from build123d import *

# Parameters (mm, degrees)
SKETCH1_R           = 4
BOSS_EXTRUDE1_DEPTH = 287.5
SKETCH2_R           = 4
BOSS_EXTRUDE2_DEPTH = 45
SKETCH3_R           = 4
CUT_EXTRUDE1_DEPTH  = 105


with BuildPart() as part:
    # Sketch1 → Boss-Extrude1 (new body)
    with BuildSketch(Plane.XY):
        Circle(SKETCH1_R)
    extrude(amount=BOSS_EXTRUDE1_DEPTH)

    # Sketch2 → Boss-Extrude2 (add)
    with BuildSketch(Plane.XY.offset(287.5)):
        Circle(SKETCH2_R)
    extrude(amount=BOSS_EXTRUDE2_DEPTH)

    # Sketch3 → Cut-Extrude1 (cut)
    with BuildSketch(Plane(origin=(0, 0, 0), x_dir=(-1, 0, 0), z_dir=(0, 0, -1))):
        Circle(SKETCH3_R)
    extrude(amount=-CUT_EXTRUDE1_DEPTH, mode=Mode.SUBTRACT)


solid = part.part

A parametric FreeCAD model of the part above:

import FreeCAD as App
import Part
import Sketcher
from FreeCAD import Vector
Q = App.Units.Quantity

doc = App.newDocument("Part")
body = doc.addObject("PartDesign::Body", "Body")

sketch1 = doc.addObject("Sketcher::SketchObject", "Sketch")
body.addObject(sketch1)
sketch1.AttachmentSupport = (doc.XY_Plane, [""])
sketch1.MapMode = "FlatFace"
sketch1.addGeometry(Part.Circle(Vector(0, 0, 0), Vector(0, 0, 1), 4), False)
sketch1.addConstraint([
    Sketcher.Constraint("Coincident", 0, 3, -1, 1),
    Sketcher.Constraint("Diameter", 0, Q("8 mm")),
])
pad1 = doc.addObject("PartDesign::Pad", "Pad")
body.addObject(pad1)
pad1.Profile = sketch1
pad1.Length = 287.5

sketch2 = doc.addObject("Sketcher::SketchObject", "Sketch001")
body.addObject(sketch2)
sketch2.AttachmentSupport = (doc.XY_Plane, [""])
sketch2.MapMode = "FlatFace"
sketch2.AttachmentOffset = App.Placement(Vector(0, 0, 287.5), App.Rotation())
sketch2.addGeometry(Part.Circle(Vector(0, 0, 0), Vector(0, 0, 1), 4), False)
sketch2.addConstraint([
    Sketcher.Constraint("Coincident", 0, 3, -1, 1),
    Sketcher.Constraint("Diameter", 0, Q("8 mm")),
])
pad2 = doc.addObject("PartDesign::Pad", "Pad001")
body.addObject(pad2)
pad2.Profile = sketch2
pad2.Length = 45

sketch3 = doc.addObject("Sketcher::SketchObject", "Sketch002")
body.addObject(sketch3)
sketch3.AttachmentSupport = (doc.XY_Plane, [""])
sketch3.MapMode = "FlatFace"
sketch3.addGeometry(Part.Circle(Vector(0, 0, 0), Vector(0, 0, 1), 4), False)
sketch3.addConstraint([
    Sketcher.Constraint("Coincident", 0, 3, -1, 1),
    Sketcher.Constraint("Diameter", 0, Q("8 mm")),
])
pocket1 = doc.addObject("PartDesign::Pocket", "Pocket")
body.addObject(pocket1)
pocket1.Profile = sketch3
pocket1.Length = 105
pocket1.Reversed = True

doc.recompute()
